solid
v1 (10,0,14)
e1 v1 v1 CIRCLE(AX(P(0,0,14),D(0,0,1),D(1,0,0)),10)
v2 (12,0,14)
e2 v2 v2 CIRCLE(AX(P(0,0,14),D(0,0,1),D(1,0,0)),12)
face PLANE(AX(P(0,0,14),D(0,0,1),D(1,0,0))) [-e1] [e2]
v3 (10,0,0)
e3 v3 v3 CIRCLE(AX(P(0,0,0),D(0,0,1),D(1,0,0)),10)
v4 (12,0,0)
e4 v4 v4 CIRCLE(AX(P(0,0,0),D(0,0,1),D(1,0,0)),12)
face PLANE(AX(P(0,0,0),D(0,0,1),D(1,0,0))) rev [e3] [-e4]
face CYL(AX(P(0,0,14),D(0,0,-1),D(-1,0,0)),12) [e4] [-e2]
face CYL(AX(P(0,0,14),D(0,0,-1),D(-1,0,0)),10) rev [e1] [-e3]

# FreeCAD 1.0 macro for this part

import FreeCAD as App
import Part
import Sketcher
from FreeCAD import Vector
Q = App.Units.Quantity

doc = App.newDocument("Part")
body = doc.addObject("PartDesign::Body", "Body")

# Sketch on XY plane
sketch1 = body.newObject("Sketcher::SketchObject", "Sketch")
sketch1.AttachmentSupport = (doc.getObject("XY_Plane"), [""])
sketch1.MapMode = "FlatFace"
sketch1.addGeometry(Part.Circle(Vector(0, 0, 0), Vector(0, 0, 1), 12), False)
sketch1.addGeometry(Part.Circle(Vector(0, 0, 0), Vector(0, 0, 1), 10), False)
sketch1.addConstraint(Sketcher.Constraint("Coincident", 0, 3, -1, 1))
sketch1.addConstraint(Sketcher.Constraint("Coincident", 1, 3, -1, 1))
sketch1.addConstraint(Sketcher.Constraint("Diameter", 0, Q("24 mm")))
sketch1.addConstraint(Sketcher.Constraint("Diameter", 1, Q("20 mm")))
pad1 = body.newObject("PartDesign::Pad", "Pad")
pad1.Profile = sketch1
pad1.Length = 14

doc.recompute()
